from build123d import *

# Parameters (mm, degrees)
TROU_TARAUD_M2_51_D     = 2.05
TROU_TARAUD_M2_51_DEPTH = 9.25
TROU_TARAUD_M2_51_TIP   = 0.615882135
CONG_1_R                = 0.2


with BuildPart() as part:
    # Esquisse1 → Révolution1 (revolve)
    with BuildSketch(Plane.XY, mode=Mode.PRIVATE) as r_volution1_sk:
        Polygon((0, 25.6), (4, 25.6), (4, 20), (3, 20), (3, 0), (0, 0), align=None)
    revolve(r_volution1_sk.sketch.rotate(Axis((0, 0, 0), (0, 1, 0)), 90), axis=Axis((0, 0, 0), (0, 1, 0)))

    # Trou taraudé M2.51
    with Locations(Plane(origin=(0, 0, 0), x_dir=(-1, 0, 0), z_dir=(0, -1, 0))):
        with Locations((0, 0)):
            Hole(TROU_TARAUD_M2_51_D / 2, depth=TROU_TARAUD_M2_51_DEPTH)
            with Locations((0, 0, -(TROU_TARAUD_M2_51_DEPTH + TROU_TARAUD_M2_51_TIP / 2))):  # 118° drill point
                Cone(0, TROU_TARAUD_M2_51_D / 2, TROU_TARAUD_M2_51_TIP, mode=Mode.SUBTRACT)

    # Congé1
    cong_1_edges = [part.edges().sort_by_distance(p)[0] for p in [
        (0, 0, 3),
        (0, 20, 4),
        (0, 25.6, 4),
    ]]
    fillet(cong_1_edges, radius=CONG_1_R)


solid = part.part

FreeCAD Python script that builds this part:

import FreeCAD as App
import Part
import Sketcher

V = App.Vector


def edges_at(feature, points):
    """Names of the edges that pass closest to the given points."""
    edges = feature.Shape.Edges
    near = lambda p: min(range(len(edges)), key=lambda i: edges[i].distToShape(Part.Vertex(*p))[0])
    return sorted({f"Edge{near(p) + 1}" for p in points})


def add_polygon(sketch, points):
    """Adds a closed chain of lines whose ends are joined by coincident constraints."""
    first, n = sketch.GeometryCount, len(points)
    for a, b in zip(points, points[1:] + points[:1]):
        sketch.addGeometry(Part.LineSegment(App.Vector(*a, 0), App.Vector(*b, 0)), False)
    for i in range(n):
        sketch.addConstraint(Sketcher.Constraint("Coincident", first + i, 2, first + (i + 1) % n, 1))

doc = App.newDocument("Part")
body = doc.addObject("PartDesign::Body", "Body")

# Sketch on XY plane
sketch1 = body.newObject("Sketcher::SketchObject", "Sketch")
sketch1.AttachmentSupport = (doc.getObject("XY_Plane"), [""])
sketch1.MapMode = "FlatFace"
add_polygon(sketch1, [(4, 25.6), (0, 25.6), (0, 0), (3, 0), (3, 20), (4, 20)])  # lines 0-5
sketch1.addConstraint([
    Sketcher.Constraint("Horizontal", 0),
    Sketcher.Constraint("Vertical", 1),
    Sketcher.Constraint("Horizontal", 2),
    Sketcher.Constraint("Vertical", 3),
    Sketcher.Constraint("Horizontal", 4),
    Sketcher.Constraint("Vertical", 5),
    Sketcher.Constraint("Coincident", 1, 2, -1, 1),
    Sketcher.Constraint("DistanceX", 0, 2, 0, 1, 4.0),
    Sketcher.Constraint("DistanceX", 2, 1, 2, 2, 3.0),
    Sketcher.Constraint("DistanceY", 3, 1, 3, 2, 20.0),
    Sketcher.Constraint("DistanceY", 1, 2, 1, 1, 25.6),
])
revolution = body.newObject("PartDesign::Revolution", "Revolution")
revolution.Profile = sketch1
revolution.ReferenceAxis = (sketch1, ["V_Axis"])
revolution.Angle = 360

# Sketch on XZ plane
sketch2 = body.newObject("Sketcher::SketchObject", "Sketch001")
sketch2.AttachmentSupport = (doc.getObject("XZ_Plane"), [""])
sketch2.MapMode = "FlatFace"
sketch2.addGeometry(Part.Circle(V(0, 0, 0), V(0, 0, 1), 1), False)
sketch2.addConstraint([
    Sketcher.Constraint("Coincident", 0, 3, -1, 1),
    Sketcher.Constraint("Diameter", 0, 2.05),
])
doc.recompute()
hole = body.newObject("PartDesign::Hole", "Hole")
hole.Profile = sketch2
hole.ThreadType = "None"
hole.Diameter = 2.05
hole.DepthType = "Dimension"
hole.Depth = 9.25
hole.DrillPoint = "Angled"
hole.DrillPointAngle = 118
doc.recompute()

fillet = body.newObject("PartDesign::Fillet", "Fillet")
fillet.Base = (hole, edges_at(hole, [(0, 0, 3), (0, 20, 4), (0, 25.6, 4)]))
fillet.Radius = 0.2

doc.recompute()
